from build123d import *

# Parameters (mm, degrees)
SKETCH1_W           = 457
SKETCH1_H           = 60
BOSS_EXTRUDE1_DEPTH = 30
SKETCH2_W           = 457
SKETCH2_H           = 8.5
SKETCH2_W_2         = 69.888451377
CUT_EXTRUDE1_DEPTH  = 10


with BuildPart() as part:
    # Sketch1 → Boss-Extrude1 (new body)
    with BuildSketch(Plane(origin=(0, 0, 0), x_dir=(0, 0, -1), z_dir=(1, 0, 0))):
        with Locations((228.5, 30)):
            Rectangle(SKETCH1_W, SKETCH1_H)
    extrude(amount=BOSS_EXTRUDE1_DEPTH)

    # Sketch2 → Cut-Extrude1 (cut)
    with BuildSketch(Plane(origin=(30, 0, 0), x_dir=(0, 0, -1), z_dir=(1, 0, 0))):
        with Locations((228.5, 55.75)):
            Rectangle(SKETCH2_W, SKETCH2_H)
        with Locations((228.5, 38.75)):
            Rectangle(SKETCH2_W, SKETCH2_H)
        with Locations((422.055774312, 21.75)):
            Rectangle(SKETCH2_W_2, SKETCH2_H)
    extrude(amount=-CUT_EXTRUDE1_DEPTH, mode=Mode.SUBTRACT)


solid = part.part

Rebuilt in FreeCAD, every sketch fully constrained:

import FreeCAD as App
import Part
import Sketcher

V = App.Vector


def add_polygon(sketch, points):
    """Adds a closed chain of lines whose ends are joined by coincident constraints."""
    first, n = sketch.GeometryCount, len(points)
    for a, b in zip(points, points[1:] + points[:1]):
        sketch.addGeometry(Part.LineSegment(App.Vector(*a, 0), App.Vector(*b, 0)), False)
    for i in range(n):
        sketch.addConstraint(Sketcher.Constraint("Coincident", first + i, 2, first + (i + 1) % n, 1))

doc = App.newDocument("Part")
params = doc.addObject("Spreadsheet::Sheet", "Params")
for row, (alias, value) in enumerate([
    ("sketch1_width", "60 mm"),
    ("sketch1_height", "457 mm"),
    ("pad1_length", "30 mm"),
    ("sketch2_height", "457 mm"),
    ("sketch2_width", "8.5 mm"),
    ("pocket1_length", "10 mm"),
], start=1):
    params.set(f"A{row}", alias)
    params.set(f"B{row}", "=" + value)
    params.setAlias(f"B{row}", alias)

body = doc.addObject("PartDesign::Body", "Body")

sketch1 = body.newObject("Sketcher::SketchObject", "Sketch")
sketch1.AttachmentSupport = (doc.getObject("YZ_Plane"), [""])
sketch1.MapMode = "FlatFace"
add_polygon(sketch1, [(60, 0), (0, 0), (0, -457), (60, -457)])
sketch1.addConstraint([
    Sketcher.Constraint("Horizontal", 0),
    Sketcher.Constraint("Vertical", 1),
    Sketcher.Constraint("Horizontal", 2),
    Sketcher.Constraint("Vertical", 3),
    Sketcher.Constraint("Coincident", 0, 2, -1, 1),
    Sketcher.Constraint("DistanceX", 0, 2, 0, 1, 60.0),
    Sketcher.Constraint("DistanceY", 1, 2, 1, 1, 457.0),
])
sketch1.setExpression("Constraints[9]", "Params.sketch1_width")
sketch1.setExpression("Constraints[10]", "Params.sketch1_height")
pad1 = body.newObject("PartDesign::Pad", "Pad")
pad1.Profile = sketch1
pad1.setExpression("Length", "Params.pad1_length")

sketch2 = body.newObject("Sketcher::SketchObject", "Sketch001")
sketch2.AttachmentSupport = (doc.getObject("YZ_Plane"), [""])
sketch2.MapMode = "FlatFace"
sketch2.AttachmentOffset = App.Placement(V(0, 0, 30), App.Rotation())
add_polygon(sketch2, [(60, 0), (52, 0), (52, -457), (60, -457)])
add_polygon(sketch2, [(43, 0), (34, 0), (34, -457), (43, -457)])
add_polygon(sketch2, [(26, -387), (18, -387), (18, -457), (26, -457)])
sketch2.addConstraint([
    Sketcher.Constraint("Horizontal", 0),
    Sketcher.Constraint("Vertical", 1),
    Sketcher.Constraint("Horizontal", 2),
    Sketcher.Constraint("Vertical", 3),
    Sketcher.Constraint("Horizontal", 4),
    Sketcher.Constraint("Vertical", 5),
    Sketcher.Constraint("Horizontal", 6),
    Sketcher.Constraint("Vertical", 7),
    Sketcher.Constraint("Horizontal", 8),
    Sketcher.Constraint("Vertical", 9),
    Sketcher.Constraint("Horizontal", 10),
    Sketcher.Constraint("Vertical", 11),
    Sketcher.Constraint("PointOnObject", 0, 2, -1),
    Sketcher.Constraint("PointOnObject", 4, 2, -1),
    Sketcher.Constraint("Horizontal", 2, 2, 5, 2),
    Sketcher.Constraint("Horizontal", 6, 2, 9, 2),
    Sketcher.Constraint("Equal", 2, 4),
    Sketcher.Constraint("Equal", 6, 8),
    Sketcher.Constraint("DistanceY", 1, 2, 1, 1, 457.0),
    Sketcher.Constraint("DistanceX", 0, 2, 0, 1, 8.5),
    Sketcher.Constraint("DistanceX", -1, 1, 2, 2, 60.0),
    Sketcher.Constraint("DistanceX", -1, 1, 6, 2, 43.0),
    Sketcher.Constraint("DistanceX", -1, 1, 10, 2, 26.0),
    Sketcher.Constraint("DistanceY", 9, 2, 9, 1, 69.888451),
])
sketch2.setExpression("Constraints[30]", "Params.sketch2_height")
sketch2.setExpression("Constraints[31]", "Params.sketch2_width")
pocket1 = body.newObject("PartDesign::Pocket", "Pocket")
pocket1.Profile = sketch2
pocket1.setExpression("Length", "Params.pocket1_length")

doc.recompute()
